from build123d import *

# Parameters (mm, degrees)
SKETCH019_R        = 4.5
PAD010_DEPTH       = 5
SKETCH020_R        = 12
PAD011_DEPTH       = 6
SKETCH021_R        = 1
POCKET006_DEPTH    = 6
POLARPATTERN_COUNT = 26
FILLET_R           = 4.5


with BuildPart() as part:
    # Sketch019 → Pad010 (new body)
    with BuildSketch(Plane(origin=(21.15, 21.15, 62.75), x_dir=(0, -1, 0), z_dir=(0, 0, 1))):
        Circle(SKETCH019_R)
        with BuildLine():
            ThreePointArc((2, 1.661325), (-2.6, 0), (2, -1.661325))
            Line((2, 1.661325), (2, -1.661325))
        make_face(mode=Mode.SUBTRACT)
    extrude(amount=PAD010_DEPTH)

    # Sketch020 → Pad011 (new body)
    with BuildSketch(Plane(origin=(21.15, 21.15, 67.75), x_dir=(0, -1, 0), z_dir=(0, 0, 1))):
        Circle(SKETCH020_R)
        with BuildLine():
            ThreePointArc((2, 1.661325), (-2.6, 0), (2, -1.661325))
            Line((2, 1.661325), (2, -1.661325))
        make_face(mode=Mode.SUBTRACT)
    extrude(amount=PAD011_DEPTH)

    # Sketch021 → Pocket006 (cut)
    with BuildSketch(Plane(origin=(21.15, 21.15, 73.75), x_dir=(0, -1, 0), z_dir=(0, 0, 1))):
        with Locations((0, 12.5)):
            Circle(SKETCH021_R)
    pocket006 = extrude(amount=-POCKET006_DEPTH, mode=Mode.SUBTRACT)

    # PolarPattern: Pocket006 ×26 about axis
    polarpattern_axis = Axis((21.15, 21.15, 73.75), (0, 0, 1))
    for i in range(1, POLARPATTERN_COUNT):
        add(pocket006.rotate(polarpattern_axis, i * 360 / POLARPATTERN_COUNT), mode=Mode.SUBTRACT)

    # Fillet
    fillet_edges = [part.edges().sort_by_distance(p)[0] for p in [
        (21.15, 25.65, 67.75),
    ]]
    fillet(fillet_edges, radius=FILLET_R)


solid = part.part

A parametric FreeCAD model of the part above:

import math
import FreeCAD as App
import Part
import Sketcher
from FreeCAD import Vector


def edges_at(feature, points):
    """Names of the edges that pass closest to the given points."""
    edges = feature.Shape.Edges
    near = lambda p: min(range(len(edges)), key=lambda i: edges[i].distToShape(Part.Vertex(*p))[0])
    return sorted({f"Edge{near(p) + 1}" for p in points})

doc = App.newDocument("Part")
body = doc.addObject("PartDesign::Body", "Body")

sketch1 = doc.addObject("Sketcher::SketchObject", "Sketch")
body.addObject(sketch1)
sketch1.AttachmentSupport = (doc.XY_Plane, [""])
sketch1.MapMode = "FlatFace"
sketch1.AttachmentOffset = App.Placement(Vector(0, 0, 62.75), App.Rotation())
sketch1.addGeometry([
    Part.Circle(Vector(21.15, 21.15, 0), Vector(0, 0, 1), 4.5),
    Part.ArcOfCircle(Part.Circle(Vector(21.15, 21.15, 0), Vector(0, 0, 1), 2.6), math.radians(-50.284858), math.radians(230.284858)),
    Part.LineSegment(Vector(22.811325, 19.15, 0), Vector(19.488675, 19.15, 0)),
], False)
sketch1.addConstraint([
    Sketcher.Constraint("Coincident", 1, 1, 2, 1),
    Sketcher.Constraint("Coincident", 2, 2, 1, 2),
    Sketcher.Constraint("Horizontal", 2),
    Sketcher.Constraint("Coincident", 1, 3, 0, 3),
    Sketcher.Constraint("Diameter", 0, 9.0),
    Sketcher.Constraint("Radius", 1, 2.6),
    Sketcher.Constraint("DistanceY", 1, 1, 1, 3, 2.0),
    Sketcher.Constraint("DistanceX", -1, 1, 0, 3, 21.15),
    Sketcher.Constraint("DistanceY", -1, 1, 0, 3, 21.15),
])
pad1 = doc.addObject("PartDesign::Pad", "Pad")
body.addObject(pad1)
pad1.Profile = sketch1
pad1.Length = 5

sketch2 = doc.addObject("Sketcher::SketchObject", "Sketch001")
body.addObject(sketch2)
sketch2.AttachmentSupport = (doc.XY_Plane, [""])
sketch2.MapMode = "FlatFace"
sketch2.AttachmentOffset = App.Placement(Vector(0, 0, 67.75), App.Rotation())
sketch2.addGeometry([
    Part.Circle(Vector(21.15, 21.15, 0), Vector(0, 0, 1), 12),
    Part.ArcOfCircle(Part.Circle(Vector(21.15, 21.15, 0), Vector(0, 0, 1), 2.6), math.radians(-50.284858), math.radians(230.284858)),
    Part.LineSegment(Vector(22.811325, 19.15, 0), Vector(19.488675, 19.15, 0)),
], False)
sketch2.addConstraint([
    Sketcher.Constraint("Coincident", 1, 1, 2, 1),
    Sketcher.Constraint("Coincident", 2, 2, 1, 2),
    Sketcher.Constraint("Horizontal", 2),
    Sketcher.Constraint("Coincident", 1, 3, 0, 3),
    Sketcher.Constraint("Diameter", 0, 24.0),
    Sketcher.Constraint("Radius", 1, 2.6),
    Sketcher.Constraint("DistanceY", 1, 1, 1, 3, 2.0),
    Sketcher.Constraint("DistanceX", -1, 1, 0, 3, 21.15),
    Sketcher.Constraint("DistanceY", -1, 1, 0, 3, 21.15),
])
pad2 = doc.addObject("PartDesign::Pad", "Pad001")
body.addObject(pad2)
pad2.Profile = sketch2
pad2.Length = 6

sketch3 = doc.addObject("Sketcher::SketchObject", "Sketch002")
body.addObject(sketch3)
sketch3.AttachmentSupport = (doc.XY_Plane, [""])
sketch3.MapMode = "FlatFace"
sketch3.AttachmentOffset = App.Placement(Vector(0, 0, 73.75), App.Rotation())
sketch3.addGeometry(Part.Circle(Vector(33.65, 21.15, 0), Vector(0, 0, 1), 1), False)
sketch3.addConstraint([
    Sketcher.Constraint("Diameter", 0, 2.0),
    Sketcher.Constraint("DistanceX", -1, 1, 0, 3, 33.65),
    Sketcher.Constraint("DistanceY", -1, 1, 0, 3, 21.15),
])
pocket1 = doc.addObject("PartDesign::Pocket", "Pocket")
body.addObject(pocket1)
pocket1.Profile = sketch3
pocket1.Length = 6
doc.recompute()

datumline = doc.addObject("PartDesign::Line", "DatumLine")
body.addObject(datumline)
datumline.Placement = App.Placement(Vector(21.15, 21.15, 0), App.Rotation(Vector(0, 0, 1), Vector(0, 0, 1)))
polarpattern = doc.addObject("PartDesign::PolarPattern", "PolarPattern")
body.addObject(polarpattern)
polarpattern.Originals = [pocket1]
polarpattern.Axis = (datumline, [""])
polarpattern.Angle = 360
polarpattern.Occurrences = 26
body.Tip = polarpattern
doc.recompute()

fillet = doc.addObject("PartDesign::Fillet", "Fillet")
body.addObject(fillet)
fillet.Base = (polarpattern, edges_at(polarpattern, [(21.15, 25.65, 67.75)]))
fillet.Radius = 4.5

doc.recompute()
